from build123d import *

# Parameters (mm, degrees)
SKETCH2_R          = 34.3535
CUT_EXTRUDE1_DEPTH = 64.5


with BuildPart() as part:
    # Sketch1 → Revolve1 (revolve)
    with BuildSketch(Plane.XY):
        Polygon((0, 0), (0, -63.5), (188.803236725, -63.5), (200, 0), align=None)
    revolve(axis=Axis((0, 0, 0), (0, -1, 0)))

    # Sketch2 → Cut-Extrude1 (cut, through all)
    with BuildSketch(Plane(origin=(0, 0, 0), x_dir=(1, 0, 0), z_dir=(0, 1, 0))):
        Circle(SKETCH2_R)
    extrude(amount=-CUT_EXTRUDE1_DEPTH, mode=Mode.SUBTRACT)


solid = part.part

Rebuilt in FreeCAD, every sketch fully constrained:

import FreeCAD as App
import Part
import Sketcher
Q = App.Units.Quantity

doc = App.newDocument("Part")
params = doc.addObject("Spreadsheet::Sheet", "Params")
for row, (alias, value) in enumerate([
    ("sketch1_width", "200 mm"),
    ("sketch1_height", "63.5 mm"),
    ("revolution_angle", "360 deg"),
], start=1):
    params.set(f"A{row}", alias)
    params.set(f"B{row}", "=" + value)
    params.setAlias(f"B{row}", alias)

body = doc.addObject("PartDesign::Body", "Body")

# Sketch on XY plane
sketch1 = body.newObject("Sketcher::SketchObject", "Sketch")
sketch1.AttachmentSupport = (doc.getObject("XY_Plane"), [""])
sketch1.MapMode = "FlatFace"
sketch1.addGeometry(Part.LineSegment(App.Vector(0, 0, 0), App.Vector(0, -64, 0)), False)
sketch1.addGeometry(Part.LineSegment(App.Vector(0, -64, 0), App.Vector(189, -64, 0)), False)
sketch1.addGeometry(Part.LineSegment(App.Vector(189, -64, 0), App.Vector(200, 0, 0)), False)
sketch1.addGeometry(Part.LineSegment(App.Vector(200, 0, 0), App.Vector(0, 0, 0)), False)
sketch1.addConstraint(Sketcher.Constraint("Coincident", 0, 2, 1, 1))
sketch1.addConstraint(Sketcher.Constraint("Coincident", 1, 2, 2, 1))
sketch1.addConstraint(Sketcher.Constraint("Coincident", 2, 2, 3, 1))
sketch1.addConstraint(Sketcher.Constraint("Coincident", 3, 2, 0, 1))
sketch1.addConstraint(Sketcher.Constraint("Vertical", 0))
sketch1.addConstraint(Sketcher.Constraint("Horizontal", 1))
sketch1.addConstraint(Sketcher.Constraint("Horizontal", 3))
sketch1.addConstraint(Sketcher.Constraint("Coincident", 3, 2, -1, 1))
sketch1.addConstraint(Sketcher.Constraint("DistanceX", 3, 2, 3, 1, Q("200 mm")))
sketch1.addConstraint(Sketcher.Constraint("Angle", 2, Q("80 deg")))
sketch1.addConstraint(Sketcher.Constraint("DistanceY", 0, 2, 0, 1, Q("63.5 mm")))
sketch1.setExpression("Constraints[8]", "Params.sketch1_width")
sketch1.setExpression("Constraints[10]", "Params.sketch1_height")
revolution = body.newObject("PartDesign::Revolution", "Revolution")
revolution.Profile = sketch1
revolution.ReferenceAxis = (sketch1, ["V_Axis"])
revolution.setExpression("Angle", "Params.revolution_angle")

# Sketch on XZ plane
sketch2 = body.newObject("Sketcher::SketchObject", "Sketch001")
sketch2.AttachmentSupport = (doc.getObject("XZ_Plane"), [""])
sketch2.MapMode = "FlatFace"
sketch2.addGeometry(Part.Circle(App.Vector(0, 0, 0), App.Vector(0, 0, 1), 34), False)
sketch2.addConstraint(Sketcher.Constraint("Coincident", 0, 3, -1, 1))
sketch2.addConstraint(Sketcher.Constraint("Diameter", 0, Q("68.707 mm")))
pocket1 = body.newObject("PartDesign::Pocket", "Pocket")
pocket1.Profile = sketch2
pocket1.Type = "ThroughAll"
pocket1.Reversed = True

doc.recompute()
